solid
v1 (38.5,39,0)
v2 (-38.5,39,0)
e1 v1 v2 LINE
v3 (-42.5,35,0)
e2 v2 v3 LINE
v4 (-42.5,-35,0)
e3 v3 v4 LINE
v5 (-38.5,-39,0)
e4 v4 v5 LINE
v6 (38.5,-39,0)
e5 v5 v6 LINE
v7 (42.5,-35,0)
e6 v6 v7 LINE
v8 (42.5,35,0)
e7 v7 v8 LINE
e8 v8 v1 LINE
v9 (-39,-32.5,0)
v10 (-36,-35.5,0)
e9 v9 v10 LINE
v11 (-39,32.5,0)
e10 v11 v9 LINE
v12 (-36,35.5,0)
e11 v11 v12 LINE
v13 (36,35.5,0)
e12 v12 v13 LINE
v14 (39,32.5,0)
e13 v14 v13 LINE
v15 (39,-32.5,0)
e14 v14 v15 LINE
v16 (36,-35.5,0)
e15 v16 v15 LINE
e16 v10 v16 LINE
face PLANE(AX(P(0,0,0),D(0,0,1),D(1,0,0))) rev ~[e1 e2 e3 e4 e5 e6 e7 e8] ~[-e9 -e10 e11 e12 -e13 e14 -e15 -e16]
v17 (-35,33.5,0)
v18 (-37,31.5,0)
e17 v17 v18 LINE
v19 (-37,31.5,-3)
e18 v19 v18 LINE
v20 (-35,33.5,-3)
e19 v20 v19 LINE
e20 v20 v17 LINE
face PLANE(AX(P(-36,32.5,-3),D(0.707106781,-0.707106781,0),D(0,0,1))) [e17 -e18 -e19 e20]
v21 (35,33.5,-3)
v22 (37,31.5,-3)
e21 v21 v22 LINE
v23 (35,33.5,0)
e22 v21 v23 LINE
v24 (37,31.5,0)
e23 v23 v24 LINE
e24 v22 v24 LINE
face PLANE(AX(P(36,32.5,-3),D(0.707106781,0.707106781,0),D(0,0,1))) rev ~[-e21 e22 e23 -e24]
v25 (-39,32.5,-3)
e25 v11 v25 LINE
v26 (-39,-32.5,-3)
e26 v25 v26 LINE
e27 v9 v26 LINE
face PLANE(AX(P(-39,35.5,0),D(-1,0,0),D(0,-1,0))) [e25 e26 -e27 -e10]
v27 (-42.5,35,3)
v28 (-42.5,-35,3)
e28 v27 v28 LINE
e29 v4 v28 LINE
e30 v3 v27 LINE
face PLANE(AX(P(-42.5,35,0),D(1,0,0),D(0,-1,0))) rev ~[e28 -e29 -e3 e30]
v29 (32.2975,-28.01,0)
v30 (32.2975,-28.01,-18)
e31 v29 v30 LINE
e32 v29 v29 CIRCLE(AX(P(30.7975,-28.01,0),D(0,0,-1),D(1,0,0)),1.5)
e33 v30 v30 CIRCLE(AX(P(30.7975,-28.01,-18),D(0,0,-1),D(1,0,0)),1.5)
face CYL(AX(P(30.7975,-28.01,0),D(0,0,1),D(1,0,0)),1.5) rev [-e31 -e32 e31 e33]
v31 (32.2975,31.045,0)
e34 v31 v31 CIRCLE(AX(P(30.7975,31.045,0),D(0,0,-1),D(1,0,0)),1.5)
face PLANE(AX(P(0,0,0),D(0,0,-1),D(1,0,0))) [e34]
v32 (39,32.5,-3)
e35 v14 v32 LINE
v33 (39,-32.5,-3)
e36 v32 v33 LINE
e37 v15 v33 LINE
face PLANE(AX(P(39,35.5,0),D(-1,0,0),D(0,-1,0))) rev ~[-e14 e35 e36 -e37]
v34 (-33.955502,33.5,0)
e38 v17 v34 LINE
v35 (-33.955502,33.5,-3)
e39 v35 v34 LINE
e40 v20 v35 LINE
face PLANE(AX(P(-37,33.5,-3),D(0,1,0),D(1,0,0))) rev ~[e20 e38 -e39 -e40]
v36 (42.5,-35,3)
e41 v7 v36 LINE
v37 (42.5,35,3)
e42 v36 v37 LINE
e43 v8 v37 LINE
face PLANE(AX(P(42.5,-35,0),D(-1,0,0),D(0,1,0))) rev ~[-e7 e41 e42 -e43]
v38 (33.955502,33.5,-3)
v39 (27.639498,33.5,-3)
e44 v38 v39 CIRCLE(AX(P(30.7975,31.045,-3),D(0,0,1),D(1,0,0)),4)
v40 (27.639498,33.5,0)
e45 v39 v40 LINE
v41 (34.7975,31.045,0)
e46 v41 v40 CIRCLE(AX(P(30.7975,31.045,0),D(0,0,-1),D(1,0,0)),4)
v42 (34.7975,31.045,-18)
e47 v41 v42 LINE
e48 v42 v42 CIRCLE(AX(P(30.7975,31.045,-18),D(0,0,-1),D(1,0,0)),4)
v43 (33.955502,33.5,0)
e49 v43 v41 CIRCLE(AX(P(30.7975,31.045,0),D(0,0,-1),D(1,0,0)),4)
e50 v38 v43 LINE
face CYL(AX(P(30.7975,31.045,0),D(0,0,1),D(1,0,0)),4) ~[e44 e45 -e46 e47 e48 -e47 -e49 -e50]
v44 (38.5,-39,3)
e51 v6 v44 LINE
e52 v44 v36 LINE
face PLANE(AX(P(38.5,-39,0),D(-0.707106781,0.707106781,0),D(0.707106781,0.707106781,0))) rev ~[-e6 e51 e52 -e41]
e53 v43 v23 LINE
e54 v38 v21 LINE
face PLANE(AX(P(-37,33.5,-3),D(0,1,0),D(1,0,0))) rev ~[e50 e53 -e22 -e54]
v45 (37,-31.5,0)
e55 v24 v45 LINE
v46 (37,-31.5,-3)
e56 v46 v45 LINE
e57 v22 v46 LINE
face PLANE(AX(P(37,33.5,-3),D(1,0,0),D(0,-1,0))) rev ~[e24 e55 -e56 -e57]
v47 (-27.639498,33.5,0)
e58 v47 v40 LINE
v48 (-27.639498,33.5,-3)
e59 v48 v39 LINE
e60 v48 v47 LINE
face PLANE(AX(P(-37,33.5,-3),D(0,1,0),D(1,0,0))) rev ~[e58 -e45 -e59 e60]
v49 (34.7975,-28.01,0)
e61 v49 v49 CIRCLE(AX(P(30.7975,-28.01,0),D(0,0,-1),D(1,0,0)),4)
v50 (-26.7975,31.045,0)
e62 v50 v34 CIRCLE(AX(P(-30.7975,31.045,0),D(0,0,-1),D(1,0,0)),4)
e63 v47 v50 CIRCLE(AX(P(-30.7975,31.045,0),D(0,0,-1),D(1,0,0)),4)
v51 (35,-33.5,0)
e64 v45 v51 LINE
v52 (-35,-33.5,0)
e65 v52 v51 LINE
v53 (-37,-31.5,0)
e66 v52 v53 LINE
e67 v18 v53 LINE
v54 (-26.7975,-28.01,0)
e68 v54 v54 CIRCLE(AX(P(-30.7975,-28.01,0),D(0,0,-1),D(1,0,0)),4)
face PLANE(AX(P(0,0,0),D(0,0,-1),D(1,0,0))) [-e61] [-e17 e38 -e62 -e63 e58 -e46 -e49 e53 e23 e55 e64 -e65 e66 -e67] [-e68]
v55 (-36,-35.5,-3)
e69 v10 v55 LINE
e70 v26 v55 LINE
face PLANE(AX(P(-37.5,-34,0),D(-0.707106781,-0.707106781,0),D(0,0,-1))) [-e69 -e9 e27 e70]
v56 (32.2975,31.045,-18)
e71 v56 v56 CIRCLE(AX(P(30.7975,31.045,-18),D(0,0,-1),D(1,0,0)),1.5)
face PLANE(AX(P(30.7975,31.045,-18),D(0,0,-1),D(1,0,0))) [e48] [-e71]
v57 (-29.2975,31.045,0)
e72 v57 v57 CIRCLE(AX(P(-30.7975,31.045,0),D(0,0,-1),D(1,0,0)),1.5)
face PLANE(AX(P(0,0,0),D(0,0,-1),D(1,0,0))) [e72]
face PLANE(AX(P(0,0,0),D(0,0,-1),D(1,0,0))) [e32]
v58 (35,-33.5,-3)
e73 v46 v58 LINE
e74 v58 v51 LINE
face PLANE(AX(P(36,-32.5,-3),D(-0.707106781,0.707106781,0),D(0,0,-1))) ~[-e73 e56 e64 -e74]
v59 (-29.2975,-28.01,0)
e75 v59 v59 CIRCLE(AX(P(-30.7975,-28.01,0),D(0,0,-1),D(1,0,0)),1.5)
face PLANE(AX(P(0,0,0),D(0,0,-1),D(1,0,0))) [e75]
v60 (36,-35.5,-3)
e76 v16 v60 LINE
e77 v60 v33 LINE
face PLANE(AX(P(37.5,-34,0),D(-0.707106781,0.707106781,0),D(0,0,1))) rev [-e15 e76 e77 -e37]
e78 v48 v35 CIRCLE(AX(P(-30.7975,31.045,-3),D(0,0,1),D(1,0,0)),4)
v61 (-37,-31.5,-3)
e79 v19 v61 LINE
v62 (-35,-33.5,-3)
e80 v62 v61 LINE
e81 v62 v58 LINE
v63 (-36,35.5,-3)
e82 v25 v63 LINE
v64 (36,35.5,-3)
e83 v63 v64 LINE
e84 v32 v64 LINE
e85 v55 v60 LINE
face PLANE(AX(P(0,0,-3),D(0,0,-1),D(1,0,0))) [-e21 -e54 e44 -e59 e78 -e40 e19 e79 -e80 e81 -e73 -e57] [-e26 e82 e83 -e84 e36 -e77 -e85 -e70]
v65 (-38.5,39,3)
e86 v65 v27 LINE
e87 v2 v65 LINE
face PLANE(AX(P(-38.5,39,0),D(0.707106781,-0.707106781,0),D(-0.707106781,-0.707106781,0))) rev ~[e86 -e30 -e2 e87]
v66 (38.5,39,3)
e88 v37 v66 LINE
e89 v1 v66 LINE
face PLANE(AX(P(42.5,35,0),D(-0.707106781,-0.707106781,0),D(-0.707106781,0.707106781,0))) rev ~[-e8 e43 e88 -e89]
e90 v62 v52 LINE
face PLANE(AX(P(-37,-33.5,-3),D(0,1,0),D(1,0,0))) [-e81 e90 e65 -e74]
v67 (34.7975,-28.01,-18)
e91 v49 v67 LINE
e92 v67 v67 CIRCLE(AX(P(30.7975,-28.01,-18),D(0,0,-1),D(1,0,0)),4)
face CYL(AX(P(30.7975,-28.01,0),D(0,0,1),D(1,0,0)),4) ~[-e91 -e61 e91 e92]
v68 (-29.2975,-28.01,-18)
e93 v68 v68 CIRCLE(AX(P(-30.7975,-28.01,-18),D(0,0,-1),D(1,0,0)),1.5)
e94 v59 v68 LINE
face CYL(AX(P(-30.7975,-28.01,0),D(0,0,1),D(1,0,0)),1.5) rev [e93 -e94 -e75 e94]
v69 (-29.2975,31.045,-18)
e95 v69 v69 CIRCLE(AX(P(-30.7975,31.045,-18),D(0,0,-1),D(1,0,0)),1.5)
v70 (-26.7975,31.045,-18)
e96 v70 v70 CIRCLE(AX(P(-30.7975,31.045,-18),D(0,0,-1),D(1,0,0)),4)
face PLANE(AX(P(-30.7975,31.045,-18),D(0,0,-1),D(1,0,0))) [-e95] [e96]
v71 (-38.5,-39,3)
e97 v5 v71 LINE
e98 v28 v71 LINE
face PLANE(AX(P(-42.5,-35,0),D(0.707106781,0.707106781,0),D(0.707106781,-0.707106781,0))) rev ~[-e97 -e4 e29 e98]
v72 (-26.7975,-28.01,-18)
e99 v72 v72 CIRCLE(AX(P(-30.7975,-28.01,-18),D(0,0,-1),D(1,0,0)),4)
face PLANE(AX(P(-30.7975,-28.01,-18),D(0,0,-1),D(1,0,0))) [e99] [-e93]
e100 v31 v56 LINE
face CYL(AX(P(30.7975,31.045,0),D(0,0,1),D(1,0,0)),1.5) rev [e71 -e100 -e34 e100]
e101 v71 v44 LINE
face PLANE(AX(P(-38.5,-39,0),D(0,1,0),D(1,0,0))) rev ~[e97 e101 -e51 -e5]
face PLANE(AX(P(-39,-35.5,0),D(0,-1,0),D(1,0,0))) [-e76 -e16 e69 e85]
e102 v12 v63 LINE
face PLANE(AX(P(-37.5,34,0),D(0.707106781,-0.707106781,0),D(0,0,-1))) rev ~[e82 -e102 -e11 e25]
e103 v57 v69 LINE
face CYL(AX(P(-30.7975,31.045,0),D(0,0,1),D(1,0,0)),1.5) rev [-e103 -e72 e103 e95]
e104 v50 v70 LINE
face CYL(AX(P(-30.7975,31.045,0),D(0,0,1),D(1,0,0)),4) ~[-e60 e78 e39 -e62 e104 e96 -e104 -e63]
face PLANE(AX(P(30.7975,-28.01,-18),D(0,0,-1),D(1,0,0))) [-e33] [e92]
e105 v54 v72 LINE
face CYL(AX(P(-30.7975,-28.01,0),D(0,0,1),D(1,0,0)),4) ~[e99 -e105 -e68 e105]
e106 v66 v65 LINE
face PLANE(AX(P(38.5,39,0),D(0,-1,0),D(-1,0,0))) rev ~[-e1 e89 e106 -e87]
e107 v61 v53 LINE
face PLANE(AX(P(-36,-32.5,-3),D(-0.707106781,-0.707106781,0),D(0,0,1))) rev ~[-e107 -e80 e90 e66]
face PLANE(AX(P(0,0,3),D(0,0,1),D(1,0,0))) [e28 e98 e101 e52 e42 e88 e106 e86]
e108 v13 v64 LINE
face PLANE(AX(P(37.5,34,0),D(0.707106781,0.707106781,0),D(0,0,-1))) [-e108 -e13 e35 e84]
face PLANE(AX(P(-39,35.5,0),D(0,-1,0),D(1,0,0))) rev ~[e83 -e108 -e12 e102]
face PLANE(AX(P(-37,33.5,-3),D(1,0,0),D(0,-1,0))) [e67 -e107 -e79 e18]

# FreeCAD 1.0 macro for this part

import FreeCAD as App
import Part
import Sketcher
from FreeCAD import Vector
Q = App.Units.Quantity


def edges_at(feature, points):
    """Names of the edges that pass closest to the given points."""
    edges = feature.Shape.Edges
    near = lambda p: min(range(len(edges)), key=lambda i: edges[i].distToShape(Part.Vertex(*p))[0])
    return sorted({f"Edge{near(p) + 1}" for p in points})


def add_polygon(sketch, points):
    """Adds a closed chain of lines whose ends are joined by coincident constraints."""
    first, n = sketch.GeometryCount, len(points)
    for a, b in zip(points, points[1:] + points[:1]):
        sketch.addGeometry(Part.LineSegment(App.Vector(*a, 0), App.Vector(*b, 0)), False)
    for i in range(n):
        sketch.addConstraint(Sketcher.Constraint("Coincident", first + i, 2, first + (i + 1) % n, 1))

doc = App.newDocument("Part")
body = doc.addObject("PartDesign::Body", "Body")

# Sketch on XY plane
sketch1 = body.newObject("Sketcher::SketchObject", "Sketch")
sketch1.AttachmentSupport = (doc.getObject("XY_Plane"), [""])
sketch1.MapMode = "FlatFace"
add_polygon(sketch1, [(38, 39), (-38, 39), (-42, 35), (-42, -35), (-38, -39), (38, -39), (42, -35), (42, 35)])  # lines 0-7
sketch1.addConstraint([
    Sketcher.Constraint("Horizontal", 0),
    Sketcher.Constraint("Vertical", 2),
    Sketcher.Constraint("Horizontal", 4),
    Sketcher.Constraint("Vertical", 6),
    Sketcher.Constraint("Symmetric", 0, 2, 4, 2, -1, 1),
    Sketcher.Constraint("Symmetric", 1, 2, 5, 2, -1, 1),
    Sketcher.Constraint("Perpendicular", 1, 3),
    Sketcher.Constraint("Perpendicular", 5, 7),
    Sketcher.Constraint("Horizontal", 2, 2, 5, 2),
    Sketcher.Constraint("Horizontal", 1, 2, 6, 2),
    Sketcher.Constraint("Vertical", 0, 2, 3, 2),
    Sketcher.Constraint("DistanceX", 0, 2, 0, 1, Q("77 mm")),
    Sketcher.Constraint("DistanceY", 2, 2, 2, 1, Q("70 mm")),
    Sketcher.Constraint("DistanceY", -1, 1, 0, 2, Q("39 mm")),
])
pad1 = body.newObject("PartDesign::Pad", "Pad")
pad1.Profile = sketch1
pad1.Length = 3

# Sketch on XY plane
sketch2 = body.newObject("Sketcher::SketchObject", "Sketch001")
sketch2.AttachmentSupport = (doc.getObject("XY_Plane"), [""])
sketch2.MapMode = "FlatFace"
add_polygon(sketch2, [(-39, -36), (-39, 36), (39, 36), (39, -36)])  # lines 0-3
sketch2.addConstraint([
    Sketcher.Constraint("Vertical", 0),
    Sketcher.Constraint("Horizontal", 1),
    Sketcher.Constraint("Vertical", 2),
    Sketcher.Constraint("Horizontal", 3),
    Sketcher.Constraint("Symmetric", 0, 2, 2, 2, -1, 1),
    Sketcher.Constraint("DistanceX", 1, 1, 1, 2, Q("78 mm")),
    Sketcher.Constraint("DistanceY", 0, 1, 0, 2, Q("71 mm")),
])
pad2 = body.newObject("PartDesign::Pad", "Pad001")
pad2.Profile = sketch2
pad2.Length = 3
pad2.Reversed = True
doc.recompute()

chamfer = body.newObject("PartDesign::Chamfer", "Chamfer")
chamfer.Base = (pad2, edges_at(pad2, [
    (39, 35.5, -1.5),
    (-39, 35.5, -1.5),
    (-39, -35.5, -1.5),
    (39, -35.5, -1.5),
]))
chamfer.Size = 3

# Sketch on XY plane
sketch3 = body.newObject("Sketcher::SketchObject", "Sketch002")
sketch3.AttachmentSupport = (doc.getObject("XY_Plane"), [""])
sketch3.MapMode = "FlatFace"
sketch3.AttachmentOffset = App.Placement(Vector(0, 0, -3), App.Rotation())
add_polygon(sketch3, [(-37, -34), (-37, 34), (37, 34), (37, -34)])  # lines 0-3
sketch3.addConstraint([
    Sketcher.Constraint("Vertical", 0),
    Sketcher.Constraint("Horizontal", 1),
    Sketcher.Constraint("Vertical", 2),
    Sketcher.Constraint("Horizontal", 3),
    Sketcher.Constraint("Symmetric", 0, 2, 2, 2, -1, 1),
    Sketcher.Constraint("DistanceX", 1, 1, 1, 2, Q("74 mm")),
    Sketcher.Constraint("DistanceY", 0, 1, 0, 2, Q("67 mm")),
])
pocket1 = body.newObject("PartDesign::Pocket", "Pocket")
pocket1.Profile = sketch3
pocket1.Length = 3
pocket1.Reversed = True
doc.recompute()

chamfer2 = body.newObject("PartDesign::Chamfer", "Chamfer001")
chamfer2.Base = (pocket1, edges_at(pocket1, [
    (37, 33.5, -1.5),
    (-37, 33.5, -1.5),
    (-37, -33.5, -1.5),
    (37, -33.5, -1.5),
]))
chamfer2.Size = 2

# Sketch on XY plane
sketch4 = body.newObject("Sketcher::SketchObject", "Sketch003")
sketch4.AttachmentSupport = (doc.getObject("XY_Plane"), [""])
sketch4.MapMode = "FlatFace"
sketch4.addGeometry([
    Part.Circle(Vector(-30.8, -28, 0), Vector(0, 0, 1), 4),  # 0
    Part.Circle(Vector(-30.8, -28, 0), Vector(0, 0, 1), 1.5),  # 1
    Part.Circle(Vector(30.8, -28, 0), Vector(0, 0, 1), 4),  # 2
    Part.Circle(Vector(30.8, -28, 0), Vector(0, 0, 1), 1.5),  # 3
    Part.Circle(Vector(-30.8, 31, 0), Vector(0, 0, 1), 4),  # 4
    Part.Circle(Vector(-30.8, 31, 0), Vector(0, 0, 1), 1.5),  # 5
    Part.Circle(Vector(30.8, 31, 0), Vector(0, 0, 1), 4),  # 6
    Part.Circle(Vector(30.8, 31, 0), Vector(0, 0, 1), 1.5),  # 7
], False)
sketch4.addConstraint([
    Sketcher.Constraint("Coincident", 1, 3, 0, 3),
    Sketcher.Constraint("Coincident", 3, 3, 2, 3),
    Sketcher.Constraint("Coincident", 5, 3, 4, 3),
    Sketcher.Constraint("Coincident", 7, 3, 6, 3),
    Sketcher.Constraint("Equal", 0, 2),
    Sketcher.Constraint("Equal", 1, 3),
    Sketcher.Constraint("Equal", 2, 4),
    Sketcher.Constraint("Equal", 3, 5),
    Sketcher.Constraint("Equal", 4, 6),
    Sketcher.Constraint("Equal", 5, 7),
    Sketcher.Constraint("Symmetric", 0, 3, 2, 3, -2),
    Sketcher.Constraint("Symmetric", 4, 3, 6, 3, -2),
    Sketcher.Constraint("Vertical", 1, 3, 4, 3),
    Sketcher.Constraint("Diameter", 0, Q("8 mm")),
    Sketcher.Constraint("Diameter", 1, Q("3 mm")),
    Sketcher.Constraint("DistanceY", 0, 3, -1, 1, Q("28.01 mm")),
    Sketcher.Constraint("DistanceY", -1, 1, 4, 3, Q("31.045 mm")),
    Sketcher.Constraint("DistanceX", 0, 3, 2, 3, Q("61.595 mm")),
])
pad3 = body.newObject("PartDesign::Pad", "Pad002")
pad3.Profile = sketch4
pad3.Length = 18
pad3.Reversed = True

doc.recompute()
